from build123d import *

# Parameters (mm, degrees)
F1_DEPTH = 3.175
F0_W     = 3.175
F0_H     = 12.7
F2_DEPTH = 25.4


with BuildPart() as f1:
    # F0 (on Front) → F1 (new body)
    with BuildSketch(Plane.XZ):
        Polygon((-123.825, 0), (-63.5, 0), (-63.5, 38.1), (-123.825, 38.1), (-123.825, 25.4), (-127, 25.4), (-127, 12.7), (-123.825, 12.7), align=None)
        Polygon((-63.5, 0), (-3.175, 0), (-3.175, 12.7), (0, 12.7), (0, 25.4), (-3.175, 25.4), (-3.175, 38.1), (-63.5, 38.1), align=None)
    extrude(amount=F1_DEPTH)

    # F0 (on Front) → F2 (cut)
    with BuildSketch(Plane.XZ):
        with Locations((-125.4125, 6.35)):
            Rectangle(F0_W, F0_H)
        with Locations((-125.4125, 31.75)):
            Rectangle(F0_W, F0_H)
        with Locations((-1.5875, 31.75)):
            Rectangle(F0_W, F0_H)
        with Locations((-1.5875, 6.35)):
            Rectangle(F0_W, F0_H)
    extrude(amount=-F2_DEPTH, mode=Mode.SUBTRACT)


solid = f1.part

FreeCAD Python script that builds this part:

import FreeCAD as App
import Part
import Sketcher
Q = App.Units.Quantity

doc = App.newDocument("Part")
body = doc.addObject("PartDesign::Body", "Body")

# Sketch on XZ plane
sketch1 = body.newObject("Sketcher::SketchObject", "Sketch")
sketch1.AttachmentSupport = (doc.getObject("XZ_Plane"), [""])
sketch1.MapMode = "FlatFace"
sketch1.addGeometry([
    Part.LineSegment(App.Vector(-123.8, 0, 0), App.Vector(-3.2, 0, 0)),  # 0
    Part.LineSegment(App.Vector(-3.2, 0, 0), App.Vector(-3.2, 12.7, 0)),  # 1
    Part.LineSegment(App.Vector(-3.2, 12.7, 0), App.Vector(0, 12.7, 0)),  # 2
    Part.LineSegment(App.Vector(0, 12.7, 0), App.Vector(0, 25.4, 0)),  # 3
    Part.LineSegment(App.Vector(0, 25.4, 0), App.Vector(-3.2, 25.4, 0)),  # 4
    Part.LineSegment(App.Vector(-3.2, 25.4, 0), App.Vector(-3.2, 38.1, 0)),  # 5
    Part.LineSegment(App.Vector(-3.2, 38.1, 0), App.Vector(-123.8, 38.1, 0)),  # 6
    Part.LineSegment(App.Vector(-123.8, 38.1, 0), App.Vector(-123.8, 25.4, 0)),  # 7
    Part.LineSegment(App.Vector(-123.8, 25.4, 0), App.Vector(-127, 25.4, 0)),  # 8
    Part.LineSegment(App.Vector(-127, 25.4, 0), App.Vector(-127, 12.7, 0)),  # 9
    Part.LineSegment(App.Vector(-127, 12.7, 0), App.Vector(-123.8, 12.7, 0)),  # 10
    Part.LineSegment(App.Vector(-123.8, 12.7, 0), App.Vector(-123.8, 0, 0)),  # 11
], False)
sketch1.addConstraint([
    Sketcher.Constraint("Coincident", 0, 2, 1, 1),
    Sketcher.Constraint("Coincident", 1, 2, 2, 1),
    Sketcher.Constraint("Coincident", 2, 2, 3, 1),
    Sketcher.Constraint("Coincident", 3, 2, 4, 1),
    Sketcher.Constraint("Coincident", 4, 2, 5, 1),
    Sketcher.Constraint("Coincident", 5, 2, 6, 1),
    Sketcher.Constraint("Coincident", 6, 2, 7, 1),
    Sketcher.Constraint("Coincident", 7, 2, 8, 1),
    Sketcher.Constraint("Coincident", 8, 2, 9, 1),
    Sketcher.Constraint("Coincident", 9, 2, 10, 1),
    Sketcher.Constraint("Coincident", 10, 2, 11, 1),
    Sketcher.Constraint("Coincident", 11, 2, 0, 1),
    Sketcher.Constraint("Horizontal", 0),
    Sketcher.Constraint("Vertical", 1),
    Sketcher.Constraint("Horizontal", 2),
    Sketcher.Constraint("Vertical", 3),
    Sketcher.Constraint("Horizontal", 4),
    Sketcher.Constraint("Vertical", 5),
    Sketcher.Constraint("Horizontal", 6),
    Sketcher.Constraint("Vertical", 7),
    Sketcher.Constraint("Horizontal", 8),
    Sketcher.Constraint("Vertical", 9),
    Sketcher.Constraint("Horizontal", 10),
    Sketcher.Constraint("Vertical", 11),
    Sketcher.Constraint("PointOnObject", 0, 2, -1),
    Sketcher.Constraint("PointOnObject", 2, 2, -2),
    Sketcher.Constraint("Horizontal", 4, 2, 7, 2),
    Sketcher.Constraint("Horizontal", 2, 2, 9, 2),
    Sketcher.Constraint("Vertical", 1, 2, 4, 2),
    Sketcher.Constraint("Vertical", 7, 2, 10, 2),
    Sketcher.Constraint("Equal", 4, 8),
    Sketcher.Constraint("Equal", 1, 3),
    Sketcher.Constraint("Equal", 3, 5),
    Sketcher.Constraint("DistanceY", 1, 1, 1, 2, Q("0.5 in")),
    Sketcher.Constraint("DistanceX", 8, 2, -1, 1, Q("5 in")),
    Sketcher.Constraint("DistanceX", 0, 1, 0, 2, Q("4.75 in")),
])
pad1 = body.newObject("PartDesign::Pad", "Pad")
pad1.Profile = sketch1
pad1.Length = Q("0.125 in")

# Sketch on XZ plane
sketch2 = body.newObject("Sketcher::SketchObject", "Sketch001")
sketch2.AttachmentSupport = (doc.getObject("XZ_Plane"), [""])
sketch2.MapMode = "FlatFace"
sketch2.addGeometry([
    Part.LineSegment(App.Vector(-127, 12.7, 0), App.Vector(-127, 0, 0)),  # 0
    Part.LineSegment(App.Vector(-127, 0, 0), App.Vector(-123.8, 0, 0)),  # 1
    Part.LineSegment(App.Vector(-123.8, 0, 0), App.Vector(-123.8, 12.7, 0)),  # 2
    Part.LineSegment(App.Vector(-123.8, 12.7, 0), App.Vector(-127, 12.7, 0)),  # 3
    Part.LineSegment(App.Vector(-127, 38.1, 0), App.Vector(-127, 25.4, 0)),  # 4
    Part.LineSegment(App.Vector(-127, 25.4, 0), App.Vector(-123.8, 25.4, 0)),  # 5
    Part.LineSegment(App.Vector(-123.8, 25.4, 0), App.Vector(-123.8, 38.1, 0)),  # 6
    Part.LineSegment(App.Vector(-123.8, 38.1, 0), App.Vector(-127, 38.1, 0)),  # 7
    Part.LineSegment(App.Vector(-3.2, 38.1, 0), App.Vector(-3.2, 25.4, 0)),  # 8
    Part.LineSegment(App.Vector(-3.2, 25.4, 0), App.Vector(0, 25.4, 0)),  # 9
    Part.LineSegment(App.Vector(0, 25.4, 0), App.Vector(0, 38.1, 0)),  # 10
    Part.LineSegment(App.Vector(0, 38.1, 0), App.Vector(-3.2, 38.1, 0)),  # 11
    Part.LineSegment(App.Vector(-3.2, 12.7, 0), App.Vector(-3.2, 0, 0)),  # 12
    Part.LineSegment(App.Vector(-3.2, 0, 0), App.Vector(0, 0, 0)),  # 13
    Part.LineSegment(App.Vector(0, 0, 0), App.Vector(0, 12.7, 0)),  # 14
    Part.LineSegment(App.Vector(0, 12.7, 0), App.Vector(-3.2, 12.7, 0)),  # 15
], False)
sketch2.addConstraint([
    Sketcher.Constraint("Coincident", 0, 2, 1, 1),
    Sketcher.Constraint("Coincident", 1, 2, 2, 1),
    Sketcher.Constraint("Coincident", 2, 2, 3, 1),
    Sketcher.Constraint("Coincident", 3, 2, 0, 1),
    Sketcher.Constraint("Coincident", 4, 2, 5, 1),
    Sketcher.Constraint("Coincident", 5, 2, 6, 1),
    Sketcher.Constraint("Coincident", 6, 2, 7, 1),
    Sketcher.Constraint("Coincident", 7, 2, 4, 1),
    Sketcher.Constraint("Coincident", 8, 2, 9, 1),
    Sketcher.Constraint("Coincident", 9, 2, 10, 1),
    Sketcher.Constraint("Coincident", 10, 2, 11, 1),
    Sketcher.Constraint("Coincident", 11, 2, 8, 1),
    Sketcher.Constraint("Coincident", 12, 2, 13, 1),
    Sketcher.Constraint("Coincident", 13, 2, 14, 1),
    Sketcher.Constraint("Coincident", 14, 2, 15, 1),
    Sketcher.Constraint("Coincident", 15, 2, 12, 1),
    Sketcher.Constraint("Vertical", 0),
    Sketcher.Constraint("Horizontal", 1),
    Sketcher.Constraint("Vertical", 2),
    Sketcher.Constraint("Horizontal", 3),
    Sketcher.Constraint("Vertical", 4),
    Sketcher.Constraint("Horizontal", 5),
    Sketcher.Constraint("Vertical", 6),
    Sketcher.Constraint("Horizontal", 7),
    Sketcher.Constraint("Vertical", 8),
    Sketcher.Constraint("Horizontal", 9),
    Sketcher.Constraint("Vertical", 10),
    Sketcher.Constraint("Horizontal", 11),
    Sketcher.Constraint("Vertical", 12),
    Sketcher.Constraint("Horizontal", 13),
    Sketcher.Constraint("Vertical", 14),
    Sketcher.Constraint("Horizontal", 15),
    Sketcher.Constraint("Coincident", 13, 2, -1, 1),
    Sketcher.Constraint("PointOnObject", 0, 2, -1),
    Sketcher.Constraint("PointOnObject", 9, 2, -2),
    Sketcher.Constraint("Horizontal", 5, 2, 8, 2),
    Sketcher.Constraint("Horizontal", 7, 2, 10, 2),
    Sketcher.Constraint("Horizontal", 3, 2, 14, 2),
    Sketcher.Constraint("Vertical", 3, 2, 4, 2),
    Sketcher.Constraint("Vertical", 2, 2, 5, 2),
    Sketcher.Constraint("Vertical", 11, 2, 12, 2),
    Sketcher.Constraint("Equal", 7, 9),
    Sketcher.Constraint("Equal", 2, 4),
    Sketcher.Constraint("DistanceY", 0, 2, 0, 1, Q("0.5 in")),
    Sketcher.Constraint("DistanceX", 0, 2, -1, 1, Q("5 in")),
    Sketcher.Constraint("DistanceY", -1, 1, 4, 2, Q("1 in")),
    Sketcher.Constraint("DistanceX", 1, 1, 1, 2, Q("0.125 in")),
])
pocket1 = body.newObject("PartDesign::Pocket", "Pocket")
pocket1.Profile = sketch2
pocket1.Length = Q("1 in")

doc.recompute()
